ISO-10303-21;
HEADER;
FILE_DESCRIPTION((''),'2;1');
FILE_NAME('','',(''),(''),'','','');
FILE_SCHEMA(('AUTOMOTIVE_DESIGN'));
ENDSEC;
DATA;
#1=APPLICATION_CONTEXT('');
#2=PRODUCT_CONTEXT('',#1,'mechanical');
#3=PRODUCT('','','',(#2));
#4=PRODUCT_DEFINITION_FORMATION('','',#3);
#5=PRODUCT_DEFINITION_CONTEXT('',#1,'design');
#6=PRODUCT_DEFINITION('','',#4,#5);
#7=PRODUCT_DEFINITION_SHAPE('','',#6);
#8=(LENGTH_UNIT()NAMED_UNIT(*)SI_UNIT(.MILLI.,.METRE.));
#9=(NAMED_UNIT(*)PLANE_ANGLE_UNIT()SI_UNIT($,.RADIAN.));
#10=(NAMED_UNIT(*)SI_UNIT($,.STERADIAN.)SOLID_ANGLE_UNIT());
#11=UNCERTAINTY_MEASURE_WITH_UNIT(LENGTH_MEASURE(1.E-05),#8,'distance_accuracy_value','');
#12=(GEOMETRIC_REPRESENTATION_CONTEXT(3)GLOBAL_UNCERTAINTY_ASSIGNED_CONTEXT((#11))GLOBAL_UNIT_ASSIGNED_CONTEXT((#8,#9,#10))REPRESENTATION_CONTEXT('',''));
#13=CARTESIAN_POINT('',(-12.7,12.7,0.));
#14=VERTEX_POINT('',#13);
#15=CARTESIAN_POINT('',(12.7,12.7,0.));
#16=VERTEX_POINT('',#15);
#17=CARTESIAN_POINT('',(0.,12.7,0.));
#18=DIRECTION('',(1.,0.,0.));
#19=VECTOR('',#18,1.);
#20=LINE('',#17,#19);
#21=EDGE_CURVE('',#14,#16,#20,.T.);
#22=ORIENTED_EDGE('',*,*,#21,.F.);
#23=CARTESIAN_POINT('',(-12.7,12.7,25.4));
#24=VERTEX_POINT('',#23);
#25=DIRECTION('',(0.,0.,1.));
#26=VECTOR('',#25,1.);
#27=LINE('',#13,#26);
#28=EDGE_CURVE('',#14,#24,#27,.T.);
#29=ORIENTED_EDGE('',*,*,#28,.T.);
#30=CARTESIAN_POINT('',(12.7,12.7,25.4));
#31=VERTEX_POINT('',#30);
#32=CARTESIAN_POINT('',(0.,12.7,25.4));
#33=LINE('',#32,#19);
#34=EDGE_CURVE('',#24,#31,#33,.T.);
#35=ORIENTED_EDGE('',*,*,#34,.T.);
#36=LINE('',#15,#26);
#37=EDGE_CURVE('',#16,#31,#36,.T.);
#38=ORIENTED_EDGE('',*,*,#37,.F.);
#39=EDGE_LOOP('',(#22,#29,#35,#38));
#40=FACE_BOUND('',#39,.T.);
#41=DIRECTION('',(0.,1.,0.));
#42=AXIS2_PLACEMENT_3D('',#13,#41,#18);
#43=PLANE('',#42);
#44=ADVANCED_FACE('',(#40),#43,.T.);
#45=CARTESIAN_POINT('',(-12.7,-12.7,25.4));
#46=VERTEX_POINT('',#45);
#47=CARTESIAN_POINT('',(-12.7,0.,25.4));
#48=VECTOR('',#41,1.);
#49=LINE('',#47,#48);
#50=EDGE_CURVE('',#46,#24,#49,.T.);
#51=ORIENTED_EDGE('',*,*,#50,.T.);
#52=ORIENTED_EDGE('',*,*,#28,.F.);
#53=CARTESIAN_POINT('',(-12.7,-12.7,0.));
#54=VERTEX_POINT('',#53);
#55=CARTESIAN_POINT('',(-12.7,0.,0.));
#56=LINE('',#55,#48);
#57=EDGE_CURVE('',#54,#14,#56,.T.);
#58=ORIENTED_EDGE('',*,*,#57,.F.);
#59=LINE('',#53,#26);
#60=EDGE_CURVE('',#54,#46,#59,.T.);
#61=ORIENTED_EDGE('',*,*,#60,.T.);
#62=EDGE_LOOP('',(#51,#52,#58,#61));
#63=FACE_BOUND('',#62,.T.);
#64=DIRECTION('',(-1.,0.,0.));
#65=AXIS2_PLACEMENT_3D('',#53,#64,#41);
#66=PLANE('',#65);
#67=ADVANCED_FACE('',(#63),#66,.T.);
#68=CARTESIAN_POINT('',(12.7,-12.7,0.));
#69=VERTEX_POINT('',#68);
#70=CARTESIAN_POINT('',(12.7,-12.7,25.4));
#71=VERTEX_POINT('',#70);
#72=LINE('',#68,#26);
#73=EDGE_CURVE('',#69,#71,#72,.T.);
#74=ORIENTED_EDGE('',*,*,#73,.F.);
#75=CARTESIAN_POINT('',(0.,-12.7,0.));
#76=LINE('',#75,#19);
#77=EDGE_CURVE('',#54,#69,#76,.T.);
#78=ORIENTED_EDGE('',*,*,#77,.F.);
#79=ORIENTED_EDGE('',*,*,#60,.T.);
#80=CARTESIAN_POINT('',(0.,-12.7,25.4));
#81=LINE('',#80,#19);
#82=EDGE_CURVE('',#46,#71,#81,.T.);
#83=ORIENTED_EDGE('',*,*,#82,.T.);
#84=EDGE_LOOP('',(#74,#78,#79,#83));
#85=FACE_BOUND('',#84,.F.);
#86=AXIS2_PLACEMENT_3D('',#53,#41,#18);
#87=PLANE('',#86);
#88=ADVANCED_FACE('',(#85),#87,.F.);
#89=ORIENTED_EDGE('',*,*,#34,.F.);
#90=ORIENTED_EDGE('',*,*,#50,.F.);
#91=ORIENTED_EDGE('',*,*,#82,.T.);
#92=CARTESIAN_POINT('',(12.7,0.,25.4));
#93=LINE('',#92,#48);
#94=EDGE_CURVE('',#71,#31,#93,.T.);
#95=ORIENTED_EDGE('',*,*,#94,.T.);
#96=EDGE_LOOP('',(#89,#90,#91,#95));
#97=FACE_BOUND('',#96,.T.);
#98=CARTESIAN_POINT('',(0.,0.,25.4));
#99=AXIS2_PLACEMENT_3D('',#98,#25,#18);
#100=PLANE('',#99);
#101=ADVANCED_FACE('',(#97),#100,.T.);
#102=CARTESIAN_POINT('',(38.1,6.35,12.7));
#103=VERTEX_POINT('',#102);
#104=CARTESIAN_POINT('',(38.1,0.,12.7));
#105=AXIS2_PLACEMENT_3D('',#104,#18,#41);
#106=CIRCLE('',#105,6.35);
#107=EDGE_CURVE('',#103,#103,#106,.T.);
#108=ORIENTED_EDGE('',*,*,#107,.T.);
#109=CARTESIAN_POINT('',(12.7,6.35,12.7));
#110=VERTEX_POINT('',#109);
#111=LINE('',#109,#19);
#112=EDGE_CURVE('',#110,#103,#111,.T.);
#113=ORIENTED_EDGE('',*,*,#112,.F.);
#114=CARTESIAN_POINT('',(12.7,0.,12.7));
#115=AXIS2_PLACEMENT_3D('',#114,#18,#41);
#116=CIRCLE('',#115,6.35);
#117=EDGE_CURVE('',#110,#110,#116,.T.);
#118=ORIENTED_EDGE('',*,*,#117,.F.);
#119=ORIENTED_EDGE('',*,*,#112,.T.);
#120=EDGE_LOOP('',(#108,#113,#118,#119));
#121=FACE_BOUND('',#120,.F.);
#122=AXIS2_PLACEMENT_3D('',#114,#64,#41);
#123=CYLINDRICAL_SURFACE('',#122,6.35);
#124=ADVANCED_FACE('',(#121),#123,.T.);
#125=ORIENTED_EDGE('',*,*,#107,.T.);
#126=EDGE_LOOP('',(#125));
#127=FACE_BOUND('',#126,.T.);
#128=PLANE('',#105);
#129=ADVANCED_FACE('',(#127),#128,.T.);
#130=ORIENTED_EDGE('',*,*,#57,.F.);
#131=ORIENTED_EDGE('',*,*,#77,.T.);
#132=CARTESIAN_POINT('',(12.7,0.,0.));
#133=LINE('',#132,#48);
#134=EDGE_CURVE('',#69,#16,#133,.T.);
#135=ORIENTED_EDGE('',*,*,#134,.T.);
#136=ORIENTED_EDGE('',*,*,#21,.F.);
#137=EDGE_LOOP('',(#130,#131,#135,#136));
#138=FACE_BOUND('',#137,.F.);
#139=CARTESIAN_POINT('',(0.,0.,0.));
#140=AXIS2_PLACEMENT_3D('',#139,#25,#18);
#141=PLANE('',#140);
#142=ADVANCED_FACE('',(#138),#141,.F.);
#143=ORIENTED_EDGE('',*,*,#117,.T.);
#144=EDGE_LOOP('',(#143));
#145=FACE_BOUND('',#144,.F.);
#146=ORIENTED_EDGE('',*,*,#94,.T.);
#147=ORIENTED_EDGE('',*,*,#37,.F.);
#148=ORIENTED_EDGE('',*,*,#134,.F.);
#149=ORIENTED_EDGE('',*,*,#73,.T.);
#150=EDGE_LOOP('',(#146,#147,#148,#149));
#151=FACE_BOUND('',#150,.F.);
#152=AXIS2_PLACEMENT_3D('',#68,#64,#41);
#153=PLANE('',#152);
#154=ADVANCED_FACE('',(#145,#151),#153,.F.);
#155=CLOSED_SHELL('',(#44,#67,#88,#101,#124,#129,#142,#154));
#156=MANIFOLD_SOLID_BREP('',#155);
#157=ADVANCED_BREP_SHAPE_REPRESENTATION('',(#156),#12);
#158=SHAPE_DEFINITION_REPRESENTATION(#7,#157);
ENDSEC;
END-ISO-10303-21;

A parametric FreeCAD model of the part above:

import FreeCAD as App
import Part
import Sketcher

V = App.Vector
Q = App.Units.Quantity

doc = App.newDocument("Part")
body = doc.addObject("PartDesign::Body", "Body")

# Sketch on XY plane
sketch1 = body.newObject("Sketcher::SketchObject", "Sketch")
sketch1.AttachmentSupport = (doc.getObject("XY_Plane"), [""])
sketch1.MapMode = "FlatFace"
sketch1.addGeometry(Part.LineSegment(V(-13, 13, 0), V(-13, -13, 0)), False)
sketch1.addGeometry(Part.LineSegment(V(-13, -13, 0), V(13, -13, 0)), False)
sketch1.addGeometry(Part.LineSegment(V(13, -13, 0), V(13, 13, 0)), False)
sketch1.addGeometry(Part.LineSegment(V(13, 13, 0), V(-13, 13, 0)), False)
sketch1.addConstraint(Sketcher.Constraint("Coincident", 0, 2, 1, 1))
sketch1.addConstraint(Sketcher.Constraint("Coincident", 1, 2, 2, 1))
sketch1.addConstraint(Sketcher.Constraint("Coincident", 2, 2, 3, 1))
sketch1.addConstraint(Sketcher.Constraint("Coincident", 3, 2, 0, 1))
sketch1.addConstraint(Sketcher.Constraint("Vertical", 0))
sketch1.addConstraint(Sketcher.Constraint("Horizontal", 1))
sketch1.addConstraint(Sketcher.Constraint("Vertical", 2))
sketch1.addConstraint(Sketcher.Constraint("Horizontal", 3))
sketch1.addConstraint(Sketcher.Constraint("Symmetric", 0, 2, 2, 2, -1, 1))
sketch1.addConstraint(Sketcher.Constraint("Equal", 3, 0))
sketch1.addConstraint(Sketcher.Constraint("DistanceX", 1, 1, 1, 2, Q("1 in")))
pad1 = body.newObject("PartDesign::Pad", "Pad")
pad1.Profile = sketch1
pad1.Length = Q("1 in")

# Sketch on YZ plane
sketch2 = body.newObject("Sketcher::SketchObject", "Sketch001")
sketch2.AttachmentSupport = (doc.getObject("YZ_Plane"), [""])
sketch2.MapMode = "FlatFace"
sketch2.AttachmentOffset = App.Placement(V(0, 0, 0.5 * 25.4), App.Rotation())
sketch2.addGeometry(Part.Circle(V(0, 13, 0), V(0, 0, 1), 6), False)
sketch2.addConstraint(Sketcher.Constraint("PointOnObject", 0, 3, -2))
sketch2.addConstraint(Sketcher.Constraint("Diameter", 0, Q("0.5 in")))
sketch2.addConstraint(Sketcher.Constraint("DistanceY", -1, 1, 0, 3, Q("0.5 in")))
pad2 = body.newObject("PartDesign::Pad", "Pad001")
pad2.Profile = sketch2
pad2.Length = Q("1 in")

doc.recompute()
